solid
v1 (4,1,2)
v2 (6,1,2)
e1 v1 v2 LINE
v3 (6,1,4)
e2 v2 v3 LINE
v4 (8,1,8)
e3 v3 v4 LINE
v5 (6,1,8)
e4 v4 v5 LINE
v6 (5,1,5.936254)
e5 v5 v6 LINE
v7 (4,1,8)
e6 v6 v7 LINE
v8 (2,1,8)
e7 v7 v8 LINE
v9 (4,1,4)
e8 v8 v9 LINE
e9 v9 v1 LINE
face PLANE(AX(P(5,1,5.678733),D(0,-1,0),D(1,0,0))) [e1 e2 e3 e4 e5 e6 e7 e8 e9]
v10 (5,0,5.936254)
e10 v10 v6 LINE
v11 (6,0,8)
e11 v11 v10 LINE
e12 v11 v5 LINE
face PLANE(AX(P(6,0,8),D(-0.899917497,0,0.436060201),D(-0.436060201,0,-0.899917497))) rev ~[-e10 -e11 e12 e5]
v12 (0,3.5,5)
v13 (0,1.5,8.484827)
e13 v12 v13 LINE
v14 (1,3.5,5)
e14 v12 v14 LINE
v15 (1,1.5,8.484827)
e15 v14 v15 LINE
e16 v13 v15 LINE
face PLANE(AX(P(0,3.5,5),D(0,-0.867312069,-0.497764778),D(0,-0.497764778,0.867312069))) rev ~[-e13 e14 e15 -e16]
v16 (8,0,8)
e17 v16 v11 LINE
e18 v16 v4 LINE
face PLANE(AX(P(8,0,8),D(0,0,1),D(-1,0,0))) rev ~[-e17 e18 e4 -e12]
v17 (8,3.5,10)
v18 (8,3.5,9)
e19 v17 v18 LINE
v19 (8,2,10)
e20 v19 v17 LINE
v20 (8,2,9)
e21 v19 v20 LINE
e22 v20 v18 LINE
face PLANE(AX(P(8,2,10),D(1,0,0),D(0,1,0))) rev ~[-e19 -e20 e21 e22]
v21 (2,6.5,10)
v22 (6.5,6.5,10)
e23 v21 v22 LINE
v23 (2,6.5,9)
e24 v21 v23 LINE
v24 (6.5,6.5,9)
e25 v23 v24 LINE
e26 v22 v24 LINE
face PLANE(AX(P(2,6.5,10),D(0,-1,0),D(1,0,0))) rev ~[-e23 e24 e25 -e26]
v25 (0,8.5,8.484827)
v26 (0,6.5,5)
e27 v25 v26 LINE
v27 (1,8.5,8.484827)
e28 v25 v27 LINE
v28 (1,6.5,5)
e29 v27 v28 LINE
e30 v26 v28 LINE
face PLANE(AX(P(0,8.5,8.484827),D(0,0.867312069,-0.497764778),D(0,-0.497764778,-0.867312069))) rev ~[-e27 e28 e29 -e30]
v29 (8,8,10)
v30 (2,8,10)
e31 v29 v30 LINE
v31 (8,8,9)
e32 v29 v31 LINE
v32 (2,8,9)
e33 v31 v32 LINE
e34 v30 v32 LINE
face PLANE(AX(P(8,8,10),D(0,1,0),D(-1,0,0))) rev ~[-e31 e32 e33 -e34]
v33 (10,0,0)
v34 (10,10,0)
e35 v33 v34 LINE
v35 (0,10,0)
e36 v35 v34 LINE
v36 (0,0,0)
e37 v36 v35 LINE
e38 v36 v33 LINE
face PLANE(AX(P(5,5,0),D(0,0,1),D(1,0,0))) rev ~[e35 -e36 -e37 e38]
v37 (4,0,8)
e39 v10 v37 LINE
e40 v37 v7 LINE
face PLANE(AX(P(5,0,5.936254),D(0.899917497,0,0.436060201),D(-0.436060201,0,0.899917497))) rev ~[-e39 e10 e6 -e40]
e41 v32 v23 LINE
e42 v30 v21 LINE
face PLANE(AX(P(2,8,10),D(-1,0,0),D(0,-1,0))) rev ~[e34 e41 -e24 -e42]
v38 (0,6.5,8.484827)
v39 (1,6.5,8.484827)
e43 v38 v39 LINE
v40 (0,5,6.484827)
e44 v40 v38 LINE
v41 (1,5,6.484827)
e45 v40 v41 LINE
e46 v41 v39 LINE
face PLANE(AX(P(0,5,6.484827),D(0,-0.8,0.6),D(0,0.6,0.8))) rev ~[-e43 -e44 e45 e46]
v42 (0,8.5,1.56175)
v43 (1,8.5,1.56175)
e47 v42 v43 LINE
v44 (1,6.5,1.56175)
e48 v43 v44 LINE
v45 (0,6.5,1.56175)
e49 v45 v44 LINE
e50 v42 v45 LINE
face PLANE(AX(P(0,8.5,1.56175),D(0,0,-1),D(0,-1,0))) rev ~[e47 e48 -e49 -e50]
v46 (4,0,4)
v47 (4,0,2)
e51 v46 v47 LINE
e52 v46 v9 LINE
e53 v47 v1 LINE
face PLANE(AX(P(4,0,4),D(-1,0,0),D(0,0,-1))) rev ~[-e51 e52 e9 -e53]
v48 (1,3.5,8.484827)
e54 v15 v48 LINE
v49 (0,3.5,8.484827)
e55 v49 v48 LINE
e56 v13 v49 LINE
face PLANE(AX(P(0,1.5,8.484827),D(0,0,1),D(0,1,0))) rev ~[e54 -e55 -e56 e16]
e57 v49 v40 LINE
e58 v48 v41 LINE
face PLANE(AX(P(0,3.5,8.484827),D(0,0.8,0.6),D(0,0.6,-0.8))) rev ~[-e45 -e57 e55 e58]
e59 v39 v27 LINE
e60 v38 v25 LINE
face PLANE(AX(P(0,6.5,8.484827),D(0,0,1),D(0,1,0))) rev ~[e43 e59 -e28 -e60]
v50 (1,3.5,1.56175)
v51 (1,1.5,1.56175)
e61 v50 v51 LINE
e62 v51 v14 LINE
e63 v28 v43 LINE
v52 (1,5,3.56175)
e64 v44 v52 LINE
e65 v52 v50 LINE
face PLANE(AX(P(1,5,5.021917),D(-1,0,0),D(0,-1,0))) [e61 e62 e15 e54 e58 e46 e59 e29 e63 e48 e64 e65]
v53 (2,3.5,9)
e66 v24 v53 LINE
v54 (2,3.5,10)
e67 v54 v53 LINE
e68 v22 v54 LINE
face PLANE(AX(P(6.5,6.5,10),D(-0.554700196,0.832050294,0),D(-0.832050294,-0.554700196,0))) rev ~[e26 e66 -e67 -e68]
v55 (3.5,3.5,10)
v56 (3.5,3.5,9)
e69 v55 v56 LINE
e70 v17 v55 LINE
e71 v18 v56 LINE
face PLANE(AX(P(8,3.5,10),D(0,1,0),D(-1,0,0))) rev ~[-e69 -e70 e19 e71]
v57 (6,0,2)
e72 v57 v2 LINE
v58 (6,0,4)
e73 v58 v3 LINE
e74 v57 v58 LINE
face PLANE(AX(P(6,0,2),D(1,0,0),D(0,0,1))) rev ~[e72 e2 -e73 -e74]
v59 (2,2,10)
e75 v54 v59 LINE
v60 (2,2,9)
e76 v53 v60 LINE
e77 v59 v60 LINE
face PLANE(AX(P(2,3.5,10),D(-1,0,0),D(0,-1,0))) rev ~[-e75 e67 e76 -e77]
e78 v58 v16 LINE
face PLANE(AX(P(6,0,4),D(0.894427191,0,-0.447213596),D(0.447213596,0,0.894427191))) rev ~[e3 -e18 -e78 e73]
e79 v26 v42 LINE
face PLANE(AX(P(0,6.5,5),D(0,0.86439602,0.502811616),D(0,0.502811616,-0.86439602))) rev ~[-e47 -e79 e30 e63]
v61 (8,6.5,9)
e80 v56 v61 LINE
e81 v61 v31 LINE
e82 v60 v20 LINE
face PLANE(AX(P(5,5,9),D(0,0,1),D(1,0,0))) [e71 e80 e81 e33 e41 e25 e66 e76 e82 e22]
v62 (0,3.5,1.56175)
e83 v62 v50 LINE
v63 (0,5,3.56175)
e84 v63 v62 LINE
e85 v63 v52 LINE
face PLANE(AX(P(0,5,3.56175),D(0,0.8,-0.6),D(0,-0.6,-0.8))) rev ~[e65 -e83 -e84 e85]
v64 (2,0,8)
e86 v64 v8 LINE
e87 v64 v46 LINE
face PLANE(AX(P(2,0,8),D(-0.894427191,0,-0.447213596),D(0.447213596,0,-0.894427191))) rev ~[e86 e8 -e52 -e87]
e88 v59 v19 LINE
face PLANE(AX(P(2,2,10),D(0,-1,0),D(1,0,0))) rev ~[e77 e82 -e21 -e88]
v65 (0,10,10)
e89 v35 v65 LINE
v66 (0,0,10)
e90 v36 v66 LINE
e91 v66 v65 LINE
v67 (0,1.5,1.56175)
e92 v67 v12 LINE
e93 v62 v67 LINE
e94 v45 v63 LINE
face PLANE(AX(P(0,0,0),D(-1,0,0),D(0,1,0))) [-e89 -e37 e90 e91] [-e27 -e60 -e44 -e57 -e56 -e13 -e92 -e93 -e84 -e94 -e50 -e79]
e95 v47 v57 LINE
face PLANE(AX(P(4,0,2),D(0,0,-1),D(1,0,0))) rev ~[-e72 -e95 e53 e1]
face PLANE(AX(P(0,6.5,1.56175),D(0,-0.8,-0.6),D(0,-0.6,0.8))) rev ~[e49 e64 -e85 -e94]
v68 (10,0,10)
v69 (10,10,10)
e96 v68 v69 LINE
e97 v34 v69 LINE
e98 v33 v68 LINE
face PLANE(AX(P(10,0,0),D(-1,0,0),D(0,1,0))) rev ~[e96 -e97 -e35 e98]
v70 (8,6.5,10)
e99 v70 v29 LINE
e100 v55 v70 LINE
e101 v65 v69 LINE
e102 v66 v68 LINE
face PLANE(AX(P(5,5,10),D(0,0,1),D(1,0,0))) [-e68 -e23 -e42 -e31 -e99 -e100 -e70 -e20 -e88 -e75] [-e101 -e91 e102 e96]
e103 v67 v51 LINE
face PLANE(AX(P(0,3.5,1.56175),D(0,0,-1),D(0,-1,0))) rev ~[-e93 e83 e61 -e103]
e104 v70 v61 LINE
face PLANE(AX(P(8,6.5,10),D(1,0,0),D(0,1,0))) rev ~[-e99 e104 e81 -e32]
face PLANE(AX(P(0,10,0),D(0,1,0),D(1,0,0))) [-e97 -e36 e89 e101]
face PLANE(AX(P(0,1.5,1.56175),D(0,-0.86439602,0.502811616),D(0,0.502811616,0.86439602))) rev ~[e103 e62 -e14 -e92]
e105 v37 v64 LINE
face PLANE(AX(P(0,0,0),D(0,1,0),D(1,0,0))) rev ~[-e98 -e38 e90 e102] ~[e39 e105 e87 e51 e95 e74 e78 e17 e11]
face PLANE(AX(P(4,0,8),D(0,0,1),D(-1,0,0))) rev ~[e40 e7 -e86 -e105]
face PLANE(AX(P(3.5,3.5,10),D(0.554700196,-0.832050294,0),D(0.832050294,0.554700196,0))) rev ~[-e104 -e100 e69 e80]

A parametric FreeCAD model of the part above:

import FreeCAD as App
import Part
import Sketcher

V = App.Vector


def add_polygon(sketch, points):
    """Adds a closed chain of lines whose ends are joined by coincident constraints."""
    first, n = sketch.GeometryCount, len(points)
    for a, b in zip(points, points[1:] + points[:1]):
        sketch.addGeometry(Part.LineSegment(App.Vector(*a, 0), App.Vector(*b, 0)), False)
    for i in range(n):
        sketch.addConstraint(Sketcher.Constraint("Coincident", first + i, 2, first + (i + 1) % n, 1))

doc = App.newDocument("Part")
body = doc.addObject("PartDesign::Body", "Body")

sketch1 = body.newObject("Sketcher::SketchObject", "Sketch")
sketch1.AttachmentSupport = (doc.getObject("XY_Plane"), [""])
sketch1.MapMode = "FlatFace"
add_polygon(sketch1, [(0, 10), (0, 0), (10, 0), (10, 10)])
sketch1.addConstraint([
    Sketcher.Constraint("Vertical", 0),
    Sketcher.Constraint("Horizontal", 1),
    Sketcher.Constraint("Vertical", 2),
    Sketcher.Constraint("Horizontal", 3),
    Sketcher.Constraint("Coincident", 0, 2, -1, 1),
    Sketcher.Constraint("Equal", 3, 0),
    Sketcher.Constraint("DistanceX", 1, 1, 1, 2, 10.0),
])
pad1 = body.newObject("PartDesign::Pad", "Pad")
pad1.Profile = sketch1
pad1.Length = 10

sketch2 = body.newObject("Sketcher::SketchObject", "Sketch001")
sketch2.AttachmentSupport = (doc.getObject("XZ_Plane"), [""])
sketch2.MapMode = "FlatFace"
add_polygon(sketch2, [(4, 8), (2, 8), (4, 4), (4, 2), (6, 2), (6, 4), (8, 8), (6, 8), (5, 5.9)])
sketch2.addConstraint([
    Sketcher.Constraint("Horizontal", 0),
    Sketcher.Constraint("Vertical", 2),
    Sketcher.Constraint("Horizontal", 3),
    Sketcher.Constraint("Vertical", 4),
    Sketcher.Constraint("Horizontal", 6),
    Sketcher.Constraint("Horizontal", 1, 2, 4, 2),
    Sketcher.Constraint("Horizontal", 0, 2, 5, 2),
    Sketcher.Constraint("Vertical", 4, 2, 6, 2),
    Sketcher.Constraint("Vertical", 2, 2, 8, 2),
    Sketcher.Constraint("Equal", 0, 3),
    Sketcher.Constraint("Equal", 3, 6),
    Sketcher.Constraint("Equal", 6, 2),
    Sketcher.Constraint("Equal", 7, 8),
    Sketcher.Constraint("DistanceX", 0, 2, 0, 1, 2.0),
    Sketcher.Constraint("DistanceX", -1, 1, 0, 2, 2.0),
    Sketcher.Constraint("DistanceY", -1, 1, 0, 2, 8.0),
    Sketcher.Constraint("DistanceY", -1, 1, 1, 2, 4.0),
    Sketcher.Constraint("Distance", 7, 2.293261),
])
pocket1 = body.newObject("PartDesign::Pocket", "Pocket")
pocket1.Profile = sketch2
pocket1.Length = 1

sketch3 = body.newObject("Sketcher::SketchObject", "Sketch002")
sketch3.AttachmentSupport = (doc.getObject("YZ_Plane"), [""])
sketch3.MapMode = "FlatFace"
add_polygon(sketch3, [(6.5, 8.5), (8.5, 8.5), (6.5, 5), (8.5, 1.6), (6.5, 1.6), (5, 3.6), (3.5, 1.6), (1.5, 1.6), (3.5, 5), (1.5, 8.5), (3.5, 8.5), (5, 6.5)])
sketch3.addConstraint([
    Sketcher.Constraint("Horizontal", 0),
    Sketcher.Constraint("Horizontal", 3),
    Sketcher.Constraint("Horizontal", 6),
    Sketcher.Constraint("Horizontal", 9),
    Sketcher.Constraint("Parallel", 4, 10),
    Sketcher.Constraint("Parallel", 5, 11),
    Sketcher.Constraint("Horizontal", 3, 2, 5, 2),
    Sketcher.Constraint("Horizontal", 1, 2, 7, 2),
    Sketcher.Constraint("Horizontal", 0, 2, 8, 2),
    Sketcher.Constraint("Vertical", 0, 2, 2, 2),
    Sketcher.Constraint("Vertical", 1, 2, 3, 2),
    Sketcher.Constraint("Vertical", 5, 2, 7, 2),
    Sketcher.Constraint("Vertical", 6, 2, 8, 2),
    Sketcher.Constraint("Vertical", 7, 2, 9, 2),
    Sketcher.Constraint("Vertical", 4, 2, 10, 2),
    Sketcher.Constraint("Vertical", 3, 2, 11, 2),
    Sketcher.Constraint("Equal", 3, 6),
    Sketcher.Constraint("DistanceX", 0, 1, 0, 2, 2.0),
    Sketcher.Constraint("DistanceY", -1, 1, 1, 2, 5.0),
    Sketcher.Constraint("DistanceX", -1, 1, 4, 2, 5.0),
    Sketcher.Constraint("DistanceY", 3, 2, 4, 2, 2.0),
    Sketcher.Constraint("DistanceX", 5, 2, 3, 2, 3.0),
    Sketcher.Constraint("DistanceY", -1, 1, 2, 2, 1.56175),
    Sketcher.Constraint("Distance", 1, 4.017962),
])
pocket2 = body.newObject("PartDesign::Pocket", "Pocket001")
pocket2.Profile = sketch3
pocket2.Length = 1
pocket2.Reversed = True

sketch4 = body.newObject("Sketcher::SketchObject", "Sketch003")
sketch4.AttachmentSupport = (doc.getObject("XY_Plane"), [""])
sketch4.MapMode = "FlatFace"
sketch4.AttachmentOffset = App.Placement(V(0, 0, 10), App.Rotation())
add_polygon(sketch4, [(8, 8), (2, 8), (2, 6.5), (6.5, 6.5), (2, 3.5), (2, 2), (8, 2), (8, 3.5), (3.5, 3.5), (8, 6.5)])
sketch4.addConstraint([
    Sketcher.Constraint("Horizontal", 0),
    Sketcher.Constraint("Vertical", 1),
    Sketcher.Constraint("Horizontal", 2),
    Sketcher.Constraint("Vertical", 4),
    Sketcher.Constraint("Horizontal", 5),
    Sketcher.Constraint("Vertical", 6),
    Sketcher.Constraint("Horizontal", 7),
    Sketcher.Constraint("Vertical", 9),
    Sketcher.Constraint("Parallel", 3, 8),
    Sketcher.Constraint("Horizontal", 3, 2, 6, 2),
    Sketcher.Constraint("Horizontal", 2, 2, 8, 2),
    Sketcher.Constraint("Vertical", 1, 2, 3, 2),
    Sketcher.Constraint("Vertical", 6, 2, 8, 2),
    Sketcher.Constraint("Equal", 1, 4),
    Sketcher.Constraint("DistanceX", 0, 2, 0, 1, 6.0),
    Sketcher.Constraint("DistanceX", 2, 1, 2, 2, 4.5),
    Sketcher.Constraint("DistanceY", 1, 2, 1, 1, 1.5),
    Sketcher.Constraint("DistanceX", -1, 1, 0, 2, 2.0),
    Sketcher.Constraint("DistanceY", -1, 1, 0, 2, 8.0),
    Sketcher.Constraint("DistanceY", -1, 1, 4, 2, 2.0),
])
pocket3 = body.newObject("PartDesign::Pocket", "Pocket002")
pocket3.Profile = sketch4
pocket3.Length = 1

doc.recompute()
